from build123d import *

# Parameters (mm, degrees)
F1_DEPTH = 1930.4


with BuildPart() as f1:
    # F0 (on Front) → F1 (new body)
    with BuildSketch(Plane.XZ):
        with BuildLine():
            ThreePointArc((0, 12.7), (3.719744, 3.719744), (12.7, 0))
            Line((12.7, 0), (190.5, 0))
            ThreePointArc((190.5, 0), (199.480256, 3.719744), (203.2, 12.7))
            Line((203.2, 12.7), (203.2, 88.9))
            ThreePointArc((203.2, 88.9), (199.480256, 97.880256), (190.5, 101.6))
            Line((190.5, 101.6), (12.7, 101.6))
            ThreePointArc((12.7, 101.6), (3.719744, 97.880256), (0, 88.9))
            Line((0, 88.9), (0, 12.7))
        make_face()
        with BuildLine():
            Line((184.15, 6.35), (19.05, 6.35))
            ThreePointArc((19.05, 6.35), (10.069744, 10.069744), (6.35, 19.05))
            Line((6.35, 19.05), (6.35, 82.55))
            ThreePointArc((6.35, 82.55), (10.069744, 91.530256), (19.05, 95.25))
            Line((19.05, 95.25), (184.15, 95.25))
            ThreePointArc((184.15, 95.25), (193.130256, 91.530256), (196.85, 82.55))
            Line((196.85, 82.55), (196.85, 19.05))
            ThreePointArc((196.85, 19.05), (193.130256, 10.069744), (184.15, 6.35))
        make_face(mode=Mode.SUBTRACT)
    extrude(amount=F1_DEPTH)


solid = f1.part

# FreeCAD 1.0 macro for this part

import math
import FreeCAD as App
import Part
import Sketcher

V = App.Vector
Q = App.Units.Quantity

doc = App.newDocument("Part")
body = doc.addObject("PartDesign::Body", "Body")

sketch1 = body.newObject("Sketcher::SketchObject", "Sketch")
sketch1.AttachmentSupport = (doc.getObject("XZ_Plane"), [""])
sketch1.MapMode = "FlatFace"
sketch1.addGeometry([
    Part.ArcOfCircle(Part.Circle(V(13, 13, 0), V(0, 0, 1), 13), math.radians(-180), math.radians(-90)),
    Part.LineSegment(V(13, 0, 0), V(190, 0, 0)),
    Part.ArcOfCircle(Part.Circle(V(190, 13, 0), V(0, 0, 1), 13), math.radians(-90), math.radians(0)),
    Part.LineSegment(V(203, 13, 0), V(203, 89, 0)),
    Part.ArcOfCircle(Part.Circle(V(190, 89, 0), V(0, 0, 1), 13), math.radians(0), math.radians(90)),
    Part.LineSegment(V(190, 102, 0), V(13, 102, 0)),
    Part.ArcOfCircle(Part.Circle(V(13, 89, 0), V(0, 0, 1), 13), math.radians(90), math.radians(180)),
    Part.LineSegment(V(0, 89, 0), V(0, 13, 0)),
    Part.ArcOfCircle(Part.Circle(V(184, 19, 0), V(0, 0, 1), 13), math.radians(-90), math.radians(0)),
    Part.LineSegment(V(184, 6, 0), V(19, 6, 0)),
    Part.ArcOfCircle(Part.Circle(V(19, 19, 0), V(0, 0, 1), 13), math.radians(-180), math.radians(-90)),
    Part.LineSegment(V(6, 19, 0), V(6, 83, 0)),
    Part.ArcOfCircle(Part.Circle(V(19, 83, 0), V(0, 0, 1), 13), math.radians(90), math.radians(180)),
    Part.LineSegment(V(19, 95, 0), V(184, 95, 0)),
    Part.ArcOfCircle(Part.Circle(V(184, 83, 0), V(0, 0, 1), 13), math.radians(0), math.radians(90)),
    Part.LineSegment(V(197, 83, 0), V(197, 19, 0)),
], False)
sketch1.addConstraint([
    Sketcher.Constraint("Tangent", 0, 2, 1, 1),
    Sketcher.Constraint("Tangent", 1, 2, 2, 1),
    Sketcher.Constraint("Tangent", 2, 2, 3, 1),
    Sketcher.Constraint("Tangent", 3, 2, 4, 1),
    Sketcher.Constraint("Tangent", 4, 2, 5, 1),
    Sketcher.Constraint("Tangent", 5, 2, 6, 1),
    Sketcher.Constraint("Tangent", 6, 2, 7, 1),
    Sketcher.Constraint("Tangent", 7, 2, 0, 1),
    Sketcher.Constraint("Tangent", 8, 1, 9, 1),
    Sketcher.Constraint("Tangent", 9, 2, 10, 2),
    Sketcher.Constraint("Tangent", 10, 1, 11, 1),
    Sketcher.Constraint("Tangent", 11, 2, 12, 2),
    Sketcher.Constraint("Tangent", 12, 1, 13, 1),
    Sketcher.Constraint("Tangent", 13, 2, 14, 2),
    Sketcher.Constraint("Tangent", 14, 1, 15, 1),
    Sketcher.Constraint("Tangent", 15, 2, 8, 2),
    Sketcher.Constraint("Horizontal", 1),
    Sketcher.Constraint("Vertical", 3),
    Sketcher.Constraint("Horizontal", 5),
    Sketcher.Constraint("Vertical", 7),
    Sketcher.Constraint("Horizontal", 9),
    Sketcher.Constraint("Vertical", 11),
    Sketcher.Constraint("Horizontal", 13),
    Sketcher.Constraint("Vertical", 15),
    Sketcher.Constraint("Equal", 0, 2),
    Sketcher.Constraint("Equal", 2, 4),
    Sketcher.Constraint("Equal", 4, 6),
    Sketcher.Constraint("Equal", 6, 8),
    Sketcher.Constraint("Equal", 8, 10),
    Sketcher.Constraint("Equal", 10, 12),
    Sketcher.Constraint("Equal", 12, 14),
    Sketcher.Constraint("PointOnObject", 0, 2, -1),
    Sketcher.Constraint("PointOnObject", 6, 2, -2),
    Sketcher.Constraint("Radius", 0, Q("0.5 in")),
    Sketcher.Constraint("DistanceX", 1, 1, 1, 2, Q("7 in")),
    Sketcher.Constraint("DistanceY", 3, 1, 3, 2, Q("3 in")),
    Sketcher.Constraint("DistanceX", 9, 2, 9, 1, Q("6.5 in")),
    Sketcher.Constraint("DistanceY", 11, 1, 11, 2, Q("2.5 in")),
    Sketcher.Constraint("DistanceX", -1, 1, 8, 3, Q("7.25 in")),
    Sketcher.Constraint("DistanceY", -1, 1, 8, 3, Q("0.75 in")),
])
pad1 = body.newObject("PartDesign::Pad", "Pad")
pad1.Profile = sketch1
pad1.Length = Q("76 in")

doc.recompute()
